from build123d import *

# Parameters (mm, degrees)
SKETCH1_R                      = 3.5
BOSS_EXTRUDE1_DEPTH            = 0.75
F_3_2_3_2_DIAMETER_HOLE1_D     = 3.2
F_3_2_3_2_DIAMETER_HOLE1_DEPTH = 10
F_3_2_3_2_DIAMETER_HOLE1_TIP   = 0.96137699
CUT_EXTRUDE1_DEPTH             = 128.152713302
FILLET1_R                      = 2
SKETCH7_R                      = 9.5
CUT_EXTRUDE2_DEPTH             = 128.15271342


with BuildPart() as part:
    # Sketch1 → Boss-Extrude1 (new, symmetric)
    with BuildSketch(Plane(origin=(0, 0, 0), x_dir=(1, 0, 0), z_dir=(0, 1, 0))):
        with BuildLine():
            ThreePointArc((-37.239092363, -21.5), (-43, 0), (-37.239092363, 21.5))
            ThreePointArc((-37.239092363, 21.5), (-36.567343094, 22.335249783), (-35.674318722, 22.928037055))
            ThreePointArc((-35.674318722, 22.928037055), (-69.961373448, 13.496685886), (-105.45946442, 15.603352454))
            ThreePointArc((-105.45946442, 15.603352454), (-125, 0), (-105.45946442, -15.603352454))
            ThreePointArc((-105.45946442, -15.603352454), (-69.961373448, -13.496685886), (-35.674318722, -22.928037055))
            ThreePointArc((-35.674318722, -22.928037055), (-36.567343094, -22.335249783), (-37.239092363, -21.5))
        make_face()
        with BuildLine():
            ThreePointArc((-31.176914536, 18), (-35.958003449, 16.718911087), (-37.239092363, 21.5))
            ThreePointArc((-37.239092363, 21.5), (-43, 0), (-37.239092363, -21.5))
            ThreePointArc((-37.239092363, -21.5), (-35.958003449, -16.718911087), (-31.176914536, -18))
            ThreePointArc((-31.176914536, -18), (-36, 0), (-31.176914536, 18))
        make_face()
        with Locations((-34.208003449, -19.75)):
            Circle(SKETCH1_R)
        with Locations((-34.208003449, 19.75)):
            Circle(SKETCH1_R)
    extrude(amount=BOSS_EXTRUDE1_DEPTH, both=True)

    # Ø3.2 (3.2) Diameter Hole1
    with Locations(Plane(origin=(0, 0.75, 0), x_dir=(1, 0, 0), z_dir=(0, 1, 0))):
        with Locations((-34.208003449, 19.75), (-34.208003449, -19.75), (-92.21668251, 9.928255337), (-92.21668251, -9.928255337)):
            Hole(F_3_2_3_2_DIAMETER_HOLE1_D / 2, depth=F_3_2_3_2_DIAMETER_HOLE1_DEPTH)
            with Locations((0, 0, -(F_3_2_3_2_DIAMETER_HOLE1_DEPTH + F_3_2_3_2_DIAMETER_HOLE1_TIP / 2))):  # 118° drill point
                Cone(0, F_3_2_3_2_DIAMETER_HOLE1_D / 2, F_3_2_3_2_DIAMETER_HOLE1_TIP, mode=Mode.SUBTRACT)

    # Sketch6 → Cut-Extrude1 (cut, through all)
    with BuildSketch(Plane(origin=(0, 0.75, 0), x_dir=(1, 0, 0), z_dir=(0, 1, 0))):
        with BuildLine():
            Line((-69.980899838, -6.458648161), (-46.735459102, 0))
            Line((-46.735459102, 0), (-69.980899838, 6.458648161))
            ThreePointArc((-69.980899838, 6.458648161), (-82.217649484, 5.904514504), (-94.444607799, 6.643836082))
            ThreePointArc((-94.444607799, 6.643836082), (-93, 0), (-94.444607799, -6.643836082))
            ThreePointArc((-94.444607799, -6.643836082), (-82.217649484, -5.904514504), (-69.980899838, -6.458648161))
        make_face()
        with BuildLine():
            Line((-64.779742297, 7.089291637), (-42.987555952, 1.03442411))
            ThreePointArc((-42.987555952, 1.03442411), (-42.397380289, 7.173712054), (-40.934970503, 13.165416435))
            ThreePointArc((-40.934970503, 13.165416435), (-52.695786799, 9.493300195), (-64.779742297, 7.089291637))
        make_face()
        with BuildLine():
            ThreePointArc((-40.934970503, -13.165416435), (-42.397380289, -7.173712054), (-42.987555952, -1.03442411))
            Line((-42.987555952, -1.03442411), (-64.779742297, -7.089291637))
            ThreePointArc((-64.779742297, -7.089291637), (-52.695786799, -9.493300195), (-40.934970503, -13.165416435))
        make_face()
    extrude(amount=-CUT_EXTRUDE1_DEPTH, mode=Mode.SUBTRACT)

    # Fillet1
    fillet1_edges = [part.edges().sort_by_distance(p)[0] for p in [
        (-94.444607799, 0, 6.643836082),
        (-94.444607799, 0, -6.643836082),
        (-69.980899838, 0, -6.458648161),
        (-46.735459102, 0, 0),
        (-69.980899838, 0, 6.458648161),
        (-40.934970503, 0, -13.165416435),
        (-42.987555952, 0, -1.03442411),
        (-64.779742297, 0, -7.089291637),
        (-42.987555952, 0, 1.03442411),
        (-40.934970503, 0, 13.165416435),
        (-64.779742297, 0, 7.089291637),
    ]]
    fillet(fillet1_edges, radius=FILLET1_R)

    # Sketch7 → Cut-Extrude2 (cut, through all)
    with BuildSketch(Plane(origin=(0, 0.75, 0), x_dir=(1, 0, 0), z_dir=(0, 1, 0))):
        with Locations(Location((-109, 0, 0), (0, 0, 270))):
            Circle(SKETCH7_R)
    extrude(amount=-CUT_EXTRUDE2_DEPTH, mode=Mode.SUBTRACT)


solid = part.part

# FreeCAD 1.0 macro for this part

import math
import FreeCAD as App
import Part
import Sketcher
Q = App.Units.Quantity


def edges_at(feature, points):
    """Names of the edges that pass closest to the given points."""
    edges = feature.Shape.Edges
    near = lambda p: min(range(len(edges)), key=lambda i: edges[i].distToShape(Part.Vertex(*p))[0])
    return sorted({f"Edge{near(p) + 1}" for p in points})

doc = App.newDocument("Part")
params = doc.addObject("Spreadsheet::Sheet", "Params")
for row, (alias, value) in enumerate([
    ("sketch1_radius", "109 mm"),
    ("sketch1_radius2", "16 mm"),
    ("sketch1_radius3", "36 mm"),
    ("sketch1_radius4", "3.5 mm"),
    ("pad1_length", "1.5 mm"),
    ("sketch2_diameter", "3.2 mm"),
    ("hole_diameter", "3.2 mm"),
    ("hole_depth", "10 mm"),
    ("sketch3_radius", "116 mm"),
    ("sketch3_radius2", "16 mm"),
    ("sketch3_radius3", "43 mm"),
    ("fillet_radius", "2 mm"),
    ("sketch4_diameter", "19 mm"),
], start=1):
    params.set(f"A{row}", alias)
    params.set(f"B{row}", "=" + value)
    params.setAlias(f"B{row}", alias)

body = doc.addObject("PartDesign::Body", "Body")

# Sketch on XZ plane
sketch1 = doc.addObject("Sketcher::SketchObject", "Sketch")
body.addObject(sketch1)
sketch1.AttachmentSupport = (doc.XZ_Plane, [""])
sketch1.MapMode = "FlatFace"
sketch1.addGeometry([
    Part.ArcOfCircle(Part.Circle(App.Vector(-81.339566, -121.901191, 0), App.Vector(0, 0, 1), 109), math.radians(65.231861), math.radians(102.784429)),  # 0
    Part.ArcOfCircle(Part.Circle(App.Vector(-109, 0, 0), App.Vector(0, 0, 1), 16), math.radians(77.215571), math.radians(282.784429)),  # 1
    Part.ArcOfCircle(Part.Circle(App.Vector(-81.339566, 121.901191, 0), App.Vector(0, 0, 1), 109), math.radians(-102.784429), math.radians(-65.231861)),  # 2
    Part.ArcOfCircle(Part.Circle(App.Vector(-34.208003, 19.75, 0), App.Vector(0, 0, 1), 3.5), math.radians(-30), math.radians(114.768139)),  # 3
    Part.ArcOfCircle(Part.Circle(App.Vector(0, 0, 0), App.Vector(0, 0, 1), 36), math.radians(150), math.radians(210)),  # 4
    Part.ArcOfCircle(Part.Circle(App.Vector(-34.208003, -19.75, 0), App.Vector(0, 0, 1), 3.5), math.radians(-114.768139), math.radians(30)),  # 5
], False)
sketch1.addConstraint([
    Sketcher.Constraint("Tangent", 0, 2, 1, 2),
    Sketcher.Constraint("Tangent", 1, 1, 2, 1),
    Sketcher.Constraint("Tangent", 2, 2, 3, 2),
    Sketcher.Constraint("Tangent", 3, 1, 4, 1),
    Sketcher.Constraint("Tangent", 4, 2, 5, 2),
    Sketcher.Constraint("Tangent", 5, 1, 0, 1),
    Sketcher.Constraint("Coincident", 4, 3, -1, 1),
    Sketcher.Constraint("Equal", 0, 2),
    Sketcher.Constraint("Equal", 3, 5),
    Sketcher.Constraint("Symmetric", 0, 3, 2, 3, -1),
    Sketcher.Constraint("Radius", 0, Q("109 mm")),
    Sketcher.Constraint("Radius", 1, Q("16 mm")),
    Sketcher.Constraint("Radius", 4, Q("36 mm")),
    Sketcher.Constraint("Radius", 3, Q("3.5 mm")),
    Sketcher.Constraint("DistanceX", 1, 3, -1, 1, Q("109 mm")),
    Sketcher.Constraint("DistanceY", -1, 1, 3, 1, Q("18 mm")),
])
sketch1.setExpression("Constraints[10]", "Params.sketch1_radius")
sketch1.setExpression("Constraints[11]", "Params.sketch1_radius2")
sketch1.setExpression("Constraints[12]", "Params.sketch1_radius3")
sketch1.setExpression("Constraints[13]", "Params.sketch1_radius4")
pad1 = doc.addObject("PartDesign::Pad", "Pad")
body.addObject(pad1)
pad1.Profile = sketch1
pad1.setExpression("Length", "Params.pad1_length")
pad1.Midplane = True

# Sketch on XZ plane
sketch2 = doc.addObject("Sketcher::SketchObject", "Sketch001")
body.addObject(sketch2)
sketch2.AttachmentSupport = (doc.XZ_Plane, [""])
sketch2.MapMode = "FlatFace"
sketch2.AttachmentOffset = App.Placement(App.Vector(0, 0, -0.75), App.Rotation())
sketch2.addGeometry([
    Part.Circle(App.Vector(-34.208003, -19.75, 0), App.Vector(0, 0, 1), 1.6),
    Part.Circle(App.Vector(-34.208003, 19.75, 0), App.Vector(0, 0, 1), 1.6),
    Part.Circle(App.Vector(-92.216683, -9.928255, 0), App.Vector(0, 0, 1), 1.6),
    Part.Circle(App.Vector(-92.216683, 9.928255, 0), App.Vector(0, 0, 1), 1.6),
], False)
sketch2.addConstraint([
    Sketcher.Constraint("Equal", 0, 1),
    Sketcher.Constraint("Equal", 1, 2),
    Sketcher.Constraint("Equal", 2, 3),
    Sketcher.Constraint("Symmetric", 0, 3, 1, 3, -1),
    Sketcher.Constraint("Symmetric", 2, 3, 3, 3, -1),
    Sketcher.Constraint("Diameter", 0, Q("3.2 mm")),
    Sketcher.Constraint("DistanceY", 0, 3, 1, 3, Q("39.5 mm")),
    Sketcher.Constraint("DistanceX", 2, 3, 0, 3, Q("58.008679 mm")),
    Sketcher.Constraint("DistanceY", 2, 3, 3, 3, Q("19.856511 mm")),
    Sketcher.Constraint("DistanceX", 0, 3, -1, 1, Q("34.208003 mm")),
])
sketch2.setExpression("Constraints[5]", "Params.sketch2_diameter")
doc.recompute()
hole = doc.addObject("PartDesign::Hole", "Hole")
body.addObject(hole)
hole.Profile = sketch2
hole.ThreadType = "None"
hole.setExpression("Diameter", "Params.hole_diameter")
hole.DepthType = "Dimension"
hole.setExpression("Depth", "Params.hole_depth")
hole.DrillPoint = "Angled"
hole.DrillPointAngle = 118
hole.Reversed = True

# Sketch on XZ plane
sketch3 = doc.addObject("Sketcher::SketchObject", "Sketch002")
body.addObject(sketch3)
sketch3.AttachmentSupport = (doc.XZ_Plane, [""])
sketch3.MapMode = "FlatFace"
sketch3.AttachmentOffset = App.Placement(App.Vector(0, 0, -0.75), App.Rotation())
sketch3.addGeometry([
    Part.LineSegment(App.Vector(-69.9809, 6.458648, 0), App.Vector(-46.735459, 0, 0)),  # 0
    Part.LineSegment(App.Vector(-46.735459, 0, 0), App.Vector(-69.9809, -6.458648, 0)),  # 1
    Part.ArcOfCircle(Part.Circle(App.Vector(-81.339566, -121.901191, 0), App.Vector(0, 0, 1), 116), math.radians(84.380619), math.radians(96.486811)),  # 2
    Part.ArcOfCircle(Part.Circle(App.Vector(-109, 0, 0), App.Vector(0, 0, 1), 16), math.radians(-24.534416), math.radians(24.534416)),  # 3
    Part.ArcOfCircle(Part.Circle(App.Vector(-81.339566, 121.901191, 0), App.Vector(0, 0, 1), 116), math.radians(-96.486811), math.radians(-84.380619)),  # 4
    Part.LineSegment(App.Vector(-64.779742, -7.089292, 0), App.Vector(-42.987556, -1.034424, 0)),  # 5
    Part.ArcOfCircle(Part.Circle(App.Vector(0, 0, 0), App.Vector(0, 0, 1), 43), math.radians(-178.621538), math.radians(-162.171283)),  # 6
    Part.ArcOfCircle(Part.Circle(App.Vector(-81.339566, -121.901191, 0), App.Vector(0, 0, 1), 116), math.radians(69.615683), math.radians(81.792581)),  # 7
    Part.ArcOfCircle(Part.Circle(App.Vector(0, 0, 0), App.Vector(0, 0, 1), 43), math.radians(162.171283), math.radians(178.621538)),  # 8
    Part.LineSegment(App.Vector(-42.987556, 1.034424, 0), App.Vector(-64.779742, 7.089292, 0)),  # 9
    Part.ArcOfCircle(Part.Circle(App.Vector(-81.339566, 121.901191, 0), App.Vector(0, 0, 1), 116), math.radians(-81.792581), math.radians(-69.615683)),  # 10
], False)
sketch3.addConstraint([
    Sketcher.Constraint("Coincident", 0, 2, 1, 1),
    Sketcher.Constraint("Coincident", 1, 2, 2, 1),
    Sketcher.Constraint("Coincident", 2, 2, 3, 1),
    Sketcher.Constraint("Coincident", 3, 2, 4, 1),
    Sketcher.Constraint("Coincident", 4, 2, 0, 1),
    Sketcher.Constraint("Coincident", 5, 2, 6, 1),
    Sketcher.Constraint("Coincident", 6, 2, 7, 1),
    Sketcher.Constraint("Coincident", 7, 2, 5, 1),
    Sketcher.Constraint("Coincident", 8, 2, 9, 1),
    Sketcher.Constraint("Coincident", 9, 2, 10, 1),
    Sketcher.Constraint("Coincident", 10, 2, 8, 1),
    Sketcher.Constraint("Coincident", 6, 3, -1, 1),
    Sketcher.Constraint("Coincident", 8, 3, -1, 1),
    Sketcher.Constraint("Coincident", 7, 3, 2, 3),
    Sketcher.Constraint("Coincident", 10, 3, 4, 3),
    Sketcher.Constraint("Equal", 2, 4),
    Sketcher.Constraint("Equal", 4, 7),
    Sketcher.Constraint("Equal", 6, 8),
    Sketcher.Constraint("Equal", 7, 10),
    Sketcher.Constraint("Symmetric", 2, 3, 4, 3, -1),
    Sketcher.Constraint("PointOnObject", 3, 3, -1),
    Sketcher.Constraint("PointOnObject", 0, 2, -1),
    Sketcher.Constraint("Parallel", 1, 5),
    Sketcher.Constraint("Parallel", 0, 9),
    Sketcher.Constraint("Vertical", 1, 2, 4, 2),
    Sketcher.Constraint("Vertical", 5, 2, 8, 2),
    Sketcher.Constraint("Radius", 2, Q("116 mm")),
    Sketcher.Constraint("Radius", 3, Q("16 mm")),
    Sketcher.Constraint("Radius", 6, Q("43 mm")),
    Sketcher.Constraint("DistanceX", 3, 3, -1, 1, Q("109 mm")),
    Sketcher.Constraint("DistanceX", 1, 2, -1, 1, Q("69.9809 mm")),
    Sketcher.Constraint("Distance", 5, Q("22.61771 mm")),
    Sketcher.Constraint("DistanceY", 2, 3, -1, 1, Q("121.901191 mm")),
    Sketcher.Constraint("DistanceX", 0, 2, -1, 1, Q("46.735459 mm")),
    Sketcher.Constraint("DistanceY", 1, 2, -1, 1, Q("6.458648 mm")),
])
sketch3.setExpression("Constraints[26]", "Params.sketch3_radius")
sketch3.setExpression("Constraints[27]", "Params.sketch3_radius2")
sketch3.setExpression("Constraints[28]", "Params.sketch3_radius3")
pocket1 = doc.addObject("PartDesign::Pocket", "Pocket")
body.addObject(pocket1)
pocket1.Profile = sketch3
pocket1.Type = "ThroughAll"
pocket1.Reversed = True
doc.recompute()

fillet = doc.addObject("PartDesign::Fillet", "Fillet")
body.addObject(fillet)
fillet.Base = (pocket1, edges_at(pocket1, [
    (-94.445, 0, 6.644),
    (-94.445, 0, -6.644),
    (-69.981, 0, -6.459),
    (-46.735, 0, 0),
    (-69.981, 0, 6.459),
    (-40.935, 0, -13.165),
    (-42.988, 0, -1.034),
    (-64.78, 0, -7.089),
    (-42.988, 0, 1.034),
    (-40.935, 0, 13.165),
    (-64.78, 0, 7.089),
]))
fillet.setExpression("Radius", "Params.fillet_radius")

# Sketch on XZ plane
sketch4 = doc.addObject("Sketcher::SketchObject", "Sketch003")
body.addObject(sketch4)
sketch4.AttachmentSupport = (doc.XZ_Plane, [""])
sketch4.MapMode = "FlatFace"
sketch4.AttachmentOffset = App.Placement(App.Vector(0, 0, -0.75), App.Rotation())
sketch4.addGeometry(Part.Circle(App.Vector(-109, 0, 0), App.Vector(0, 0, 1), 9.5), False)
sketch4.addConstraint([
    Sketcher.Constraint("PointOnObject", 0, 3, -1),
    Sketcher.Constraint("Diameter", 0, Q("19 mm")),
    Sketcher.Constraint("DistanceX", 0, 3, -1, 1, Q("109 mm")),
])
sketch4.setExpression("Constraints[1]", "Params.sketch4_diameter")
pocket2 = doc.addObject("PartDesign::Pocket", "Pocket001")
body.addObject(pocket2)
pocket2.Profile = sketch4
pocket2.Type = "ThroughAll"
pocket2.Reversed = True

doc.recompute()
